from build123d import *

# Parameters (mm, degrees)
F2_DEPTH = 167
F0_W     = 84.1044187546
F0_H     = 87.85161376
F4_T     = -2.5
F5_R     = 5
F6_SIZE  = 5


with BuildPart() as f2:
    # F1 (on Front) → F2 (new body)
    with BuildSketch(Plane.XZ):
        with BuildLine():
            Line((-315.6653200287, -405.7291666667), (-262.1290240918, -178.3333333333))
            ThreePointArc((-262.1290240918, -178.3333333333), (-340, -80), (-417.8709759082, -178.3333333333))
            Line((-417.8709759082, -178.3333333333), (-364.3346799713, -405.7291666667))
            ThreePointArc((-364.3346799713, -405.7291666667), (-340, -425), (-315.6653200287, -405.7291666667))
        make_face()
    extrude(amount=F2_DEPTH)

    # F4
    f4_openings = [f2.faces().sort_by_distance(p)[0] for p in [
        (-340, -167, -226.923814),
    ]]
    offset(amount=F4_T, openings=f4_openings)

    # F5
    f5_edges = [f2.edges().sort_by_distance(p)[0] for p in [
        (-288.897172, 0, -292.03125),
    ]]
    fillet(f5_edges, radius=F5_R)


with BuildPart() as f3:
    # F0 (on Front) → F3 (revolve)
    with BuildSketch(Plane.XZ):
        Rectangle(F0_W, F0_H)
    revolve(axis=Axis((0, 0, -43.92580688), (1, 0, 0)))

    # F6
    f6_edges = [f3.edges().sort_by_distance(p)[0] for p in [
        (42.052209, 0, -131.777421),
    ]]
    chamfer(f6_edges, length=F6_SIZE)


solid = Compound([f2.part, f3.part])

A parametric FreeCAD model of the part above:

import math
import FreeCAD as App
import Part
import Sketcher
from FreeCAD import Vector


def edges_at(feature, points):
    """Names of the edges that pass closest to the given points."""
    edges = feature.Shape.Edges
    near = lambda p: min(range(len(edges)), key=lambda i: edges[i].distToShape(Part.Vertex(*p))[0])
    return sorted({f"Edge{near(p) + 1}" for p in points})


def faces_at(feature, points):
    """Names of the faces that lie closest to the given points."""
    faces = feature.Shape.Faces
    near = lambda p: min(range(len(faces)), key=lambda i: faces[i].distToShape(Part.Vertex(*p))[0])
    return sorted({f"Face{near(p) + 1}" for p in points})

doc = App.newDocument("Part")
body = doc.addObject("PartDesign::Body", "Body")

# Sketch on XZ plane
sketch1 = doc.addObject("Sketcher::SketchObject", "Sketch")
body.addObject(sketch1)
sketch1.AttachmentSupport = (doc.XZ_Plane, [""])
sketch1.MapMode = "FlatFace"
sketch1.addGeometry([
    Part.LineSegment(Vector(-316, -406, 0), Vector(-262, -178, 0)),
    Part.ArcOfCircle(Part.Circle(Vector(-340, -160, 0), Vector(0, 0, 1), 80), math.radians(-13), math.radians(193)),
    Part.LineSegment(Vector(-418, -178, 0), Vector(-364, -406, 0)),
    Part.ArcOfCircle(Part.Circle(Vector(-340, -400, 0), Vector(0, 0, 1), 25), math.radians(-167), math.radians(-13)),
], False)
sketch1.addConstraint([
    Sketcher.Constraint("Tangent", 0, 2, 1, 1),
    Sketcher.Constraint("Tangent", 1, 2, 2, 1),
    Sketcher.Constraint("Tangent", 2, 2, 3, 1),
    Sketcher.Constraint("Tangent", 3, 2, 0, 1),
    Sketcher.Constraint("Horizontal", 0, 2, 1, 2),
    Sketcher.Constraint("Radius", 1, 80.0),
    Sketcher.Constraint("Radius", 3, 25.0),
    Sketcher.Constraint("DistanceX", 1, 3, -1, 1, 340.0),
    Sketcher.Constraint("DistanceY", 1, 3, -1, 1, 160.0),
    Sketcher.Constraint("DistanceY", 3, 3, -1, 1, 400.0),
])
pad1 = doc.addObject("PartDesign::Pad", "Pad")
body.addObject(pad1)
pad1.Profile = sketch1
pad1.Length = 167
doc.recompute()

thickness = doc.addObject("PartDesign::Thickness", "Thickness")
body.addObject(thickness)
thickness.Base = (pad1, faces_at(pad1, [(-340, -167, -252.5)]))
thickness.Value = 2.5
thickness.Reversed = True
thickness.Join = "Arc"
doc.recompute()

fillet = doc.addObject("PartDesign::Fillet", "Fillet")
body.addObject(fillet)
fillet.Base = (thickness, edges_at(thickness, [(-288.897, 0, -292.031)]))
fillet.Radius = 5
body2 = doc.addObject("PartDesign::Body", "Body001")

# Sketch on XZ plane
sketch2 = doc.addObject("Sketcher::SketchObject", "Sketch001")
body2.addObject(sketch2)
sketch2.AttachmentSupport = (doc.getObject("XZ_Plane001"), [""])
sketch2.MapMode = "FlatFace"
sketch2.addGeometry([
    Part.LineSegment(Vector(-42, 44, 0), Vector(-42, -44, 0)),
    Part.LineSegment(Vector(-42, -44, 0), Vector(42, -44, 0)),
    Part.LineSegment(Vector(42, -44, 0), Vector(42, 44, 0)),
    Part.LineSegment(Vector(42, 44, 0), Vector(-42, 44, 0)),
], False)
sketch2.addGeometry(Part.LineSegment(Vector(-42, -44, 0), Vector(42, -44, 0)), True)  # axis
sketch2.addConstraint([
    Sketcher.Constraint("Coincident", 0, 2, 1, 1),
    Sketcher.Constraint("Coincident", 1, 2, 2, 1),
    Sketcher.Constraint("Coincident", 2, 2, 3, 1),
    Sketcher.Constraint("Coincident", 3, 2, 0, 1),
    Sketcher.Constraint("Vertical", 0),
    Sketcher.Constraint("Horizontal", 1),
    Sketcher.Constraint("Vertical", 2),
    Sketcher.Constraint("Horizontal", 3),
    Sketcher.Constraint("Horizontal", 4),
    Sketcher.Constraint("Coincident", 4, 1, 0, 2),
    Sketcher.Constraint("Symmetric", 0, 2, 2, 2, -1, 1),
    Sketcher.Constraint("Vertical", 2, 2, 4, 2),
    Sketcher.Constraint("DistanceX", 1, 1, 1, 2, 84.104419),
    Sketcher.Constraint("DistanceY", 0, 2, 0, 1, 87.851614),
])
revolution = doc.addObject("PartDesign::Revolution", "Revolution")
body2.addObject(revolution)
revolution.Profile = sketch2
revolution.ReferenceAxis = (sketch2, ["Axis0"])
revolution.Angle = 360
doc.recompute()

chamfer = doc.addObject("PartDesign::Chamfer", "Chamfer")
body2.addObject(chamfer)
chamfer.Base = (revolution, edges_at(revolution, [(42.052, 0, -131.777)]))
chamfer.Size = 5

doc.recompute()
